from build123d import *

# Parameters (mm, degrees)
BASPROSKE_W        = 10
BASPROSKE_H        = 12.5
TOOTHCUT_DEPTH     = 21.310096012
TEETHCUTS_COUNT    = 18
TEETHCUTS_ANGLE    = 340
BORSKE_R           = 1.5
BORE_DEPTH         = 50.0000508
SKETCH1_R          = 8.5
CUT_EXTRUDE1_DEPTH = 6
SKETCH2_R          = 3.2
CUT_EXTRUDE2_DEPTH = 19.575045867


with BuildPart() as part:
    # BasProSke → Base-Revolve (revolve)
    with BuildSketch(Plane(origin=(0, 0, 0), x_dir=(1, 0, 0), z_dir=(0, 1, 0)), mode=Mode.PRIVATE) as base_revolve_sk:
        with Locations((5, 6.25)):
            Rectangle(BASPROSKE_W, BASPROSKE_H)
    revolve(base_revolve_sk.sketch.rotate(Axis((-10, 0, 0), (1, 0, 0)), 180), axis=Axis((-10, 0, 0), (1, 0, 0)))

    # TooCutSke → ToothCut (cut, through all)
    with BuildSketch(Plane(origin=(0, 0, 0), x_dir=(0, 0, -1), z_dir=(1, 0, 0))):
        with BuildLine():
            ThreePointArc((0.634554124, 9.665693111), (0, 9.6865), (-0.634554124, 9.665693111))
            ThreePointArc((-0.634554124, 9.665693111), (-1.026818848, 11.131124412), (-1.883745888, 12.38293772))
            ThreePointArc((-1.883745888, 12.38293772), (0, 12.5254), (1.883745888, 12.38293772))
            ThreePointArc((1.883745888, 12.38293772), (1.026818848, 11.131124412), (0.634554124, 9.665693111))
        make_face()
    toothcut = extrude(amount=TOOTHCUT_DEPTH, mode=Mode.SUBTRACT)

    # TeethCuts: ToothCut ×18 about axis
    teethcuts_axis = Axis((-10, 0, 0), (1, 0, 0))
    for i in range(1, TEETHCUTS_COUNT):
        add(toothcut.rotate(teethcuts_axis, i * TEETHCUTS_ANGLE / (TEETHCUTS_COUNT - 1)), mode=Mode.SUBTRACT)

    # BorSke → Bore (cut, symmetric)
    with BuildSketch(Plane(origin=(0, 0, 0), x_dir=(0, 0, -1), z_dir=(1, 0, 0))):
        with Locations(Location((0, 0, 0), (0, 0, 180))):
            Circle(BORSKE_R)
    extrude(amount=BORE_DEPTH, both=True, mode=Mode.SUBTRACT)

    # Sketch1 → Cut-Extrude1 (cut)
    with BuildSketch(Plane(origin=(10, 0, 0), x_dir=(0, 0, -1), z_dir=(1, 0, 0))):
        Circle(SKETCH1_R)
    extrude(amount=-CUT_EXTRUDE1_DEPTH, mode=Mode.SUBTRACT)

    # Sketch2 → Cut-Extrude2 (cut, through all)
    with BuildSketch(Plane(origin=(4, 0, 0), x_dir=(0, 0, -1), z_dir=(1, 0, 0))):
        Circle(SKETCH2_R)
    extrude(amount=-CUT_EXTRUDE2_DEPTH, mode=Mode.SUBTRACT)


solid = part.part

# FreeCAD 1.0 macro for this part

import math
import FreeCAD as App
import Part
import Sketcher
from FreeCAD import Vector
Q = App.Units.Quantity


def add_polygon(sketch, points):
    """Adds a closed chain of lines whose ends are joined by coincident constraints."""
    first, n = sketch.GeometryCount, len(points)
    for a, b in zip(points, points[1:] + points[:1]):
        sketch.addGeometry(Part.LineSegment(App.Vector(*a, 0), App.Vector(*b, 0)), False)
    for i in range(n):
        sketch.addConstraint(Sketcher.Constraint("Coincident", first + i, 2, first + (i + 1) % n, 1))

doc = App.newDocument("Part")
body = doc.addObject("PartDesign::Body", "Body")

# Sketch on XZ plane
sketch1 = body.newObject("Sketcher::SketchObject", "Sketch")
sketch1.AttachmentSupport = (doc.getObject("XZ_Plane"), [""])
sketch1.MapMode = "FlatFace"
add_polygon(sketch1, [(0, -12), (0, 0), (10, 0), (10, -12)])  # lines 0-3
sketch1.addConstraint(Sketcher.Constraint("Vertical", 0))
sketch1.addConstraint(Sketcher.Constraint("Horizontal", 1))
sketch1.addConstraint(Sketcher.Constraint("Vertical", 2))
sketch1.addConstraint(Sketcher.Constraint("Horizontal", 3))
sketch1.addConstraint(Sketcher.Constraint("Coincident", 0, 2, -1, 1))
sketch1.addConstraint(Sketcher.Constraint("DistanceX", 1, 1, 1, 2, Q("10 mm")))
sketch1.addConstraint(Sketcher.Constraint("DistanceY", 0, 1, 0, 2, Q("12.5 mm")))
revolution = body.newObject("PartDesign::Revolution", "Revolution")
revolution.Profile = sketch1
revolution.ReferenceAxis = (sketch1, ["H_Axis"])
revolution.Angle = 360

# Sketch on YZ plane
sketch2 = body.newObject("Sketcher::SketchObject", "Sketch001")
sketch2.AttachmentSupport = (doc.getObject("YZ_Plane"), [""])
sketch2.MapMode = "FlatFace"
sketch2.addGeometry(Part.ArcOfCircle(Part.Circle(Vector(0, 0, 0), Vector(0, 0, 1), 9.7), math.radians(-3.76), math.radians(3.76)), False)
sketch2.addGeometry(Part.ArcOfCircle(Part.Circle(Vector(9.3, -5.1, 0), Vector(0, 0, 1), 4.5), math.radians(46), math.radians(85)), False)
sketch2.addGeometry(Part.ArcOfCircle(Part.Circle(Vector(0, 0, 0), Vector(0, 0, 1), 12.5), math.radians(-8.65), math.radians(8.65)), False)
sketch2.addGeometry(Part.ArcOfCircle(Part.Circle(Vector(9.3, 5.1, 0), Vector(0, 0, 1), 4.5), math.radians(-85), math.radians(-46)), False)
sketch2.addConstraint(Sketcher.Constraint("Coincident", 0, 1, 1, 2))
sketch2.addConstraint(Sketcher.Constraint("Coincident", 1, 1, 2, 1))
sketch2.addConstraint(Sketcher.Constraint("Coincident", 2, 2, 3, 2))
sketch2.addConstraint(Sketcher.Constraint("Coincident", 3, 1, 0, 2))
sketch2.addConstraint(Sketcher.Constraint("Coincident", 0, 3, -1, 1))
sketch2.addConstraint(Sketcher.Constraint("Coincident", 2, 3, -1, 1))
sketch2.addConstraint(Sketcher.Constraint("Equal", 1, 3))
sketch2.addConstraint(Sketcher.Constraint("Symmetric", 1, 3, 3, 3, -1))
sketch2.addConstraint(Sketcher.Constraint("Radius", 1, Q("4.5 mm")))
sketch2.addConstraint(Sketcher.Constraint("Radius", 0, Q("9.6865 mm")))
sketch2.addConstraint(Sketcher.Constraint("Radius", 2, Q("12.5254 mm")))
sketch2.addConstraint(Sketcher.Constraint("DistanceY", 0, 1, 2, 2, Q("2.5183 mm")))
sketch2.addConstraint(Sketcher.Constraint("DistanceX", -1, 1, 1, 3, Q("9.251469 mm")))
pocket1 = body.newObject("PartDesign::Pocket", "Pocket")
pocket1.Profile = sketch2
pocket1.Type = "ThroughAll"
pocket1.Reversed = True
doc.recompute()

polarpattern = body.newObject("PartDesign::PolarPattern", "PolarPattern")
polarpattern.Originals = [pocket1]
polarpattern.Axis = (doc.getObject("X_Axis"), [""])
polarpattern.Angle = 360
polarpattern.Occurrences = 18
body.Tip = polarpattern

# Sketch on YZ plane
sketch3 = body.newObject("Sketcher::SketchObject", "Sketch002")
sketch3.AttachmentSupport = (doc.getObject("YZ_Plane"), [""])
sketch3.MapMode = "FlatFace"
sketch3.addGeometry(Part.Circle(Vector(0, 0, 0), Vector(0, 0, 1), 1.5), False)
sketch3.addConstraint(Sketcher.Constraint("Coincident", 0, 3, -1, 1))
sketch3.addConstraint(Sketcher.Constraint("Diameter", 0, Q("3 mm")))
pocket2 = body.newObject("PartDesign::Pocket", "Pocket001")
pocket2.Profile = sketch3
pocket2.Length = 100.000102
pocket2.Midplane = True

# Sketch on YZ plane
sketch4 = body.newObject("Sketcher::SketchObject", "Sketch003")
sketch4.AttachmentSupport = (doc.getObject("YZ_Plane"), [""])
sketch4.MapMode = "FlatFace"
sketch4.AttachmentOffset = App.Placement(Vector(0, 0, 10), App.Rotation())
sketch4.addGeometry(Part.Circle(Vector(0, 0, 0), Vector(0, 0, 1), 8), False)
sketch4.addConstraint(Sketcher.Constraint("Coincident", 0, 3, -1, 1))
sketch4.addConstraint(Sketcher.Constraint("Diameter", 0, Q("17 mm")))
pocket3 = body.newObject("PartDesign::Pocket", "Pocket002")
pocket3.Profile = sketch4
pocket3.Length = 6

# Sketch on YZ plane
sketch5 = body.newObject("Sketcher::SketchObject", "Sketch004")
sketch5.AttachmentSupport = (doc.getObject("YZ_Plane"), [""])
sketch5.MapMode = "FlatFace"
sketch5.AttachmentOffset = App.Placement(Vector(0, 0, 4), App.Rotation())
sketch5.addGeometry(Part.Circle(Vector(0, 0, 0), Vector(0, 0, 1), 3.2), False)
sketch5.addConstraint(Sketcher.Constraint("Coincident", 0, 3, -1, 1))
sketch5.addConstraint(Sketcher.Constraint("Diameter", 0, Q("6.4 mm")))
pocket4 = body.newObject("PartDesign::Pocket", "Pocket003")
pocket4.Profile = sketch5
pocket4.Type = "ThroughAll"

doc.recompute()
